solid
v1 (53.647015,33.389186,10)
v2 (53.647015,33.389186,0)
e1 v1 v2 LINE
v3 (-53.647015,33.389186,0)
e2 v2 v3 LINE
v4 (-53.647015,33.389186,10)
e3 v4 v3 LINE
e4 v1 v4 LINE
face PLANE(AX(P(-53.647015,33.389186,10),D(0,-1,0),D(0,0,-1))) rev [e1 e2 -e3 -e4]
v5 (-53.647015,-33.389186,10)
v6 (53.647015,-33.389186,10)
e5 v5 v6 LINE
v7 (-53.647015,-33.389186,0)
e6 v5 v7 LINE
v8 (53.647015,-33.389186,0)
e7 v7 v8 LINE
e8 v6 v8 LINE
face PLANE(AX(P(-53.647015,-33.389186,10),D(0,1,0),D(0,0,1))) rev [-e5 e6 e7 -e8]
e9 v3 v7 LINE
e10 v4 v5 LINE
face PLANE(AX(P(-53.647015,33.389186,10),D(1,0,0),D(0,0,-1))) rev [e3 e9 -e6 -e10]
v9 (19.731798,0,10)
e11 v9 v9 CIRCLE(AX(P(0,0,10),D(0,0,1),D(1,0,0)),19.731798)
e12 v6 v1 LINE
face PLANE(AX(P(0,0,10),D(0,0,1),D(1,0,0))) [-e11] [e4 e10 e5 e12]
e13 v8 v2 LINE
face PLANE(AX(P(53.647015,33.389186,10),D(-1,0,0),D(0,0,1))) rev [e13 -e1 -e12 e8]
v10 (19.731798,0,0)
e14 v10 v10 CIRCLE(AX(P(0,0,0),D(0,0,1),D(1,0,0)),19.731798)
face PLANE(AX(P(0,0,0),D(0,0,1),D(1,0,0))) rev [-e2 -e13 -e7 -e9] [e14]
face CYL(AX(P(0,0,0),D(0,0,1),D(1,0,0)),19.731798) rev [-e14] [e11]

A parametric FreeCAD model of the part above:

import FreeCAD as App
import Part
import Sketcher


def add_polygon(sketch, points):
    """Adds a closed chain of lines whose ends are joined by coincident constraints."""
    first, n = sketch.GeometryCount, len(points)
    for a, b in zip(points, points[1:] + points[:1]):
        sketch.addGeometry(Part.LineSegment(App.Vector(*a, 0), App.Vector(*b, 0)), False)
    for i in range(n):
        sketch.addConstraint(Sketcher.Constraint("Coincident", first + i, 2, first + (i + 1) % n, 1))

doc = App.newDocument("Part")
body = doc.addObject("PartDesign::Body", "Body")

sketch1 = doc.addObject("Sketcher::SketchObject", "Sketch")
body.addObject(sketch1)
sketch1.AttachmentSupport = (doc.XY_Plane, [""])
sketch1.MapMode = "FlatFace"
add_polygon(sketch1, [(-54, 33), (-54, -33), (54, -33), (54, 33)])
sketch1.addConstraint([
    Sketcher.Constraint("Vertical", 0),
    Sketcher.Constraint("Horizontal", 1),
    Sketcher.Constraint("Vertical", 2),
    Sketcher.Constraint("Horizontal", 3),
    Sketcher.Constraint("Symmetric", 0, 2, 2, 2, -1, 1),
    Sketcher.Constraint("DistanceX", 1, 1, 1, 2, 107.294031),
    Sketcher.Constraint("DistanceY", 0, 2, 0, 1, 66.778372),
])
pad1 = doc.addObject("PartDesign::Pad", "Pad")
body.addObject(pad1)
pad1.Profile = sketch1
pad1.Length = 10

sketch2 = doc.addObject("Sketcher::SketchObject", "Sketch001")
body.addObject(sketch2)
sketch2.AttachmentSupport = (doc.XY_Plane, [""])
sketch2.MapMode = "FlatFace"
sketch2.AttachmentOffset = App.Placement(App.Vector(0, 0, 10), App.Rotation())
sketch2.addGeometry(Part.Circle(App.Vector(0, 0, 0), App.Vector(0, 0, 1), 20), False)
sketch2.addConstraint([
    Sketcher.Constraint("Coincident", 0, 3, -1, 1),
    Sketcher.Constraint("Diameter", 0, 39.463596),
])
pocket1 = doc.addObject("PartDesign::Pocket", "Pocket")
body.addObject(pocket1)
pocket1.Profile = sketch2
pocket1.Length = 10

doc.recompute()
